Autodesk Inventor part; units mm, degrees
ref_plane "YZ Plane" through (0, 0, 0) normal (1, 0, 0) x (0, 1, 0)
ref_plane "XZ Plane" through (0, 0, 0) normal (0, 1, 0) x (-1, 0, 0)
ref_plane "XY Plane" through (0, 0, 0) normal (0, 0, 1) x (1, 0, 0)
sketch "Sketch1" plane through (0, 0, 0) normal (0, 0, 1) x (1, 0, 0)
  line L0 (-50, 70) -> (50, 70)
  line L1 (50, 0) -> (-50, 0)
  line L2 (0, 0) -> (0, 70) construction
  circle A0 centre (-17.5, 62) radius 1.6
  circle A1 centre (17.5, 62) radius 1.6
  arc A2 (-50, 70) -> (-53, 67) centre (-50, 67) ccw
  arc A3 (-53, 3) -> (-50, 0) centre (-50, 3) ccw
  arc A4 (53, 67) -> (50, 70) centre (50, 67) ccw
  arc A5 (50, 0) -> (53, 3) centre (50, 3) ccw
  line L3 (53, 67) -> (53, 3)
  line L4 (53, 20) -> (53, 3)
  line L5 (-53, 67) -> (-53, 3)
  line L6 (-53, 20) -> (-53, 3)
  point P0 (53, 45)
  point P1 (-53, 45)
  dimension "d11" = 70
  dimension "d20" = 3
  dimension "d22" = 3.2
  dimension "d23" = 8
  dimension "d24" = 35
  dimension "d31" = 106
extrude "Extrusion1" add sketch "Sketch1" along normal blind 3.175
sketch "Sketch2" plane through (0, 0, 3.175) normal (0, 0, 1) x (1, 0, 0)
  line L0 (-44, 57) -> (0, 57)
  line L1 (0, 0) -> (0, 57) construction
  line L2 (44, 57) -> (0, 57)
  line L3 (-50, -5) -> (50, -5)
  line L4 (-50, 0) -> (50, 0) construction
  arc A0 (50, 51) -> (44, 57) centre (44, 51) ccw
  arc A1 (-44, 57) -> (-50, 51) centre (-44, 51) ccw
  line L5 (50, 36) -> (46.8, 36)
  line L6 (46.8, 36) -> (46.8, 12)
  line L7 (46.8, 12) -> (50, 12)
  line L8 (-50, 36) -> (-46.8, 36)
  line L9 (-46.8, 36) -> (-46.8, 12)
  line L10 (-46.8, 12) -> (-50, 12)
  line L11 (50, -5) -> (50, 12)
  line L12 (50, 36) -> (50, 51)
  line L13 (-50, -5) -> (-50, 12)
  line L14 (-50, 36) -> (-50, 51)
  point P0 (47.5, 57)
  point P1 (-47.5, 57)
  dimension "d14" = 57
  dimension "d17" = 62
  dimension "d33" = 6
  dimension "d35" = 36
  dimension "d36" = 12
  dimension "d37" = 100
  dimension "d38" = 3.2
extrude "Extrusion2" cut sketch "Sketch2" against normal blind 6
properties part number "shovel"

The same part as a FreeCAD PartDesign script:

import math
import FreeCAD as App
import Part
import Sketcher
Q = App.Units.Quantity

doc = App.newDocument("Part")
body = doc.addObject("PartDesign::Body", "Body")

# Sketch on XY plane
sketch1 = body.newObject("Sketcher::SketchObject", "Sketch")
sketch1.AttachmentSupport = (doc.getObject("XY_Plane"), [""])
sketch1.MapMode = "FlatFace"
sketch1.addGeometry(Part.LineSegment(App.Vector(50, 70, 0), App.Vector(-50, 70, 0)), False)
sketch1.addGeometry(Part.ArcOfCircle(Part.Circle(App.Vector(-50, 67, 0), App.Vector(0, 0, 1), 3), math.radians(90), math.radians(180)), False)
sketch1.addGeometry(Part.LineSegment(App.Vector(-53, 67, 0), App.Vector(-53, 3, 0)), False)
sketch1.addGeometry(Part.ArcOfCircle(Part.Circle(App.Vector(-50, 3, 0), App.Vector(0, 0, 1), 3), math.radians(180), math.radians(270)), False)
sketch1.addGeometry(Part.LineSegment(App.Vector(-50, 0, 0), App.Vector(50, 0, 0)), False)
sketch1.addGeometry(Part.ArcOfCircle(Part.Circle(App.Vector(50, 3, 0), App.Vector(0, 0, 1), 3), math.radians(-90), math.radians(0)), False)
sketch1.addGeometry(Part.LineSegment(App.Vector(53, 3, 0), App.Vector(53, 67, 0)), False)
sketch1.addGeometry(Part.ArcOfCircle(Part.Circle(App.Vector(50, 67, 0), App.Vector(0, 0, 1), 3), math.radians(0), math.radians(90)), False)
sketch1.addGeometry(Part.Circle(App.Vector(-17.5, 62, 0), App.Vector(0, 0, 1), 1.6), False)
sketch1.addGeometry(Part.Circle(App.Vector(17.5, 62, 0), App.Vector(0, 0, 1), 1.6), False)
sketch1.addConstraint(Sketcher.Constraint("Tangent", 0, 2, 1, 1))
sketch1.addConstraint(Sketcher.Constraint("Tangent", 1, 2, 2, 1))
sketch1.addConstraint(Sketcher.Constraint("Tangent", 2, 2, 3, 1))
sketch1.addConstraint(Sketcher.Constraint("Tangent", 3, 2, 4, 1))
sketch1.addConstraint(Sketcher.Constraint("Tangent", 4, 2, 5, 1))
sketch1.addConstraint(Sketcher.Constraint("Tangent", 5, 2, 6, 1))
sketch1.addConstraint(Sketcher.Constraint("Tangent", 6, 2, 7, 1))
sketch1.addConstraint(Sketcher.Constraint("Tangent", 7, 2, 0, 1))
sketch1.addConstraint(Sketcher.Constraint("Horizontal", 0))
sketch1.addConstraint(Sketcher.Constraint("Vertical", 2))
sketch1.addConstraint(Sketcher.Constraint("Horizontal", 4))
sketch1.addConstraint(Sketcher.Constraint("Vertical", 6))
sketch1.addConstraint(Sketcher.Constraint("Equal", 1, 3))
sketch1.addConstraint(Sketcher.Constraint("Equal", 3, 5))
sketch1.addConstraint(Sketcher.Constraint("Equal", 5, 7))
sketch1.addConstraint(Sketcher.Constraint("Equal", 8, 9))
sketch1.addConstraint(Sketcher.Constraint("Symmetric", 3, 2, 4, 2, -1, 1))
sketch1.addConstraint(Sketcher.Constraint("Symmetric", 8, 3, 9, 3, -2))
sketch1.addConstraint(Sketcher.Constraint("Radius", 1, Q("3 mm")))
sketch1.addConstraint(Sketcher.Constraint("Diameter", 8, Q("3.2 mm")))
sketch1.addConstraint(Sketcher.Constraint("DistanceY", -1, 1, 0, 2, Q("70 mm")))
sketch1.addConstraint(Sketcher.Constraint("DistanceX", 8, 3, 9, 3, Q("35 mm")))
sketch1.addConstraint(Sketcher.Constraint("DistanceY", 8, 3, 0, 2, Q("8 mm")))
sketch1.addConstraint(Sketcher.Constraint("DistanceX", 0, 2, 0, 1, Q("100 mm")))
pad1 = body.newObject("PartDesign::Pad", "Pad")
pad1.Profile = sketch1
pad1.Length = 3.175

# Sketch on XY plane
sketch2 = body.newObject("Sketcher::SketchObject", "Sketch001")
sketch2.AttachmentSupport = (doc.getObject("XY_Plane"), [""])
sketch2.MapMode = "FlatFace"
sketch2.AttachmentOffset = App.Placement(App.Vector(0, 0, 3.175), App.Rotation())
sketch2.addGeometry(Part.LineSegment(App.Vector(44, 57, 0), App.Vector(-44, 57, 0)), False)
sketch2.addGeometry(Part.ArcOfCircle(Part.Circle(App.Vector(-44, 51, 0), App.Vector(0, 0, 1), 6), math.radians(90), math.radians(180)), False)
sketch2.addGeometry(Part.LineSegment(App.Vector(-50, 51, 0), App.Vector(-50, 36, 0)), False)
sketch2.addGeometry(Part.LineSegment(App.Vector(-50, 36, 0), App.Vector(-46.8, 36, 0)), False)
sketch2.addGeometry(Part.LineSegment(App.Vector(-46.8, 36, 0), App.Vector(-46.8, 12, 0)), False)
sketch2.addGeometry(Part.LineSegment(App.Vector(-46.8, 12, 0), App.Vector(-50, 12, 0)), False)
sketch2.addGeometry(Part.LineSegment(App.Vector(-50, 12, 0), App.Vector(-50, -5, 0)), False)
sketch2.addGeometry(Part.LineSegment(App.Vector(-50, -5, 0), App.Vector(50, -5, 0)), False)
sketch2.addGeometry(Part.LineSegment(App.Vector(50, -5, 0), App.Vector(50, 12, 0)), False)
sketch2.addGeometry(Part.LineSegment(App.Vector(50, 12, 0), App.Vector(46.8, 12, 0)), False)
sketch2.addGeometry(Part.LineSegment(App.Vector(46.8, 12, 0), App.Vector(46.8, 36, 0)), False)
sketch2.addGeometry(Part.LineSegment(App.Vector(46.8, 36, 0), App.Vector(50, 36, 0)), False)
sketch2.addGeometry(Part.LineSegment(App.Vector(50, 36, 0), App.Vector(50, 51, 0)), False)
sketch2.addGeometry(Part.ArcOfCircle(Part.Circle(App.Vector(44, 51, 0), App.Vector(0, 0, 1), 6), math.radians(0), math.radians(90)), False)
sketch2.addConstraint(Sketcher.Constraint("Tangent", 0, 2, 1, 1))
sketch2.addConstraint(Sketcher.Constraint("Tangent", 1, 2, 2, 1))
sketch2.addConstraint(Sketcher.Constraint("Coincident", 2, 2, 3, 1))
sketch2.addConstraint(Sketcher.Constraint("Coincident", 3, 2, 4, 1))
sketch2.addConstraint(Sketcher.Constraint("Coincident", 4, 2, 5, 1))
sketch2.addConstraint(Sketcher.Constraint("Coincident", 5, 2, 6, 1))
sketch2.addConstraint(Sketcher.Constraint("Coincident", 6, 2, 7, 1))
sketch2.addConstraint(Sketcher.Constraint("Coincident", 7, 2, 8, 1))
sketch2.addConstraint(Sketcher.Constraint("Coincident", 8, 2, 9, 1))
sketch2.addConstraint(Sketcher.Constraint("Coincident", 9, 2, 10, 1))
sketch2.addConstraint(Sketcher.Constraint("Coincident", 10, 2, 11, 1))
sketch2.addConstraint(Sketcher.Constraint("Coincident", 11, 2, 12, 1))
sketch2.addConstraint(Sketcher.Constraint("Tangent", 12, 2, 13, 1))
sketch2.addConstraint(Sketcher.Constraint("Tangent", 13, 2, 0, 1))
sketch2.addConstraint(Sketcher.Constraint("Horizontal", 0))
sketch2.addConstraint(Sketcher.Constraint("Vertical", 2))
sketch2.addConstraint(Sketcher.Constraint("Horizontal", 3))
sketch2.addConstraint(Sketcher.Constraint("Vertical", 4))
sketch2.addConstraint(Sketcher.Constraint("Horizontal", 5))
sketch2.addConstraint(Sketcher.Constraint("Vertical", 6))
sketch2.addConstraint(Sketcher.Constraint("Horizontal", 7))
sketch2.addConstraint(Sketcher.Constraint("Vertical", 8))
sketch2.addConstraint(Sketcher.Constraint("Horizontal", 9))
sketch2.addConstraint(Sketcher.Constraint("Vertical", 10))
sketch2.addConstraint(Sketcher.Constraint("Horizontal", 11))
sketch2.addConstraint(Sketcher.Constraint("Vertical", 12))
sketch2.addConstraint(Sketcher.Constraint("Equal", 1, 13))
sketch2.addConstraint(Sketcher.Constraint("Symmetric", 5, 2, 8, 2, -2))
sketch2.addConstraint(Sketcher.Constraint("Symmetric", 3, 2, 10, 2, -2))
sketch2.addConstraint(Sketcher.Constraint("Vertical", 2, 2, 5, 2))
sketch2.addConstraint(Sketcher.Constraint("Vertical", 8, 2, 11, 2))
sketch2.addConstraint(Sketcher.Constraint("Radius", 1, Q("6 mm")))
sketch2.addConstraint(Sketcher.Constraint("DistanceX", 7, 1, 7, 2, Q("100 mm")))
sketch2.addConstraint(Sketcher.Constraint("DistanceX", 3, 1, 3, 2, Q("3.2 mm")))
sketch2.addConstraint(Sketcher.Constraint("DistanceY", -1, 1, 0, 2, Q("57 mm")))
sketch2.addConstraint(Sketcher.Constraint("DistanceY", -1, 1, 2, 2, Q("36 mm")))
sketch2.addConstraint(Sketcher.Constraint("DistanceY", -1, 1, 4, 2, Q("12 mm")))
sketch2.addConstraint(Sketcher.Constraint("DistanceY", 6, 2, 6, 1, Q("17 mm")))
pocket1 = body.newObject("PartDesign::Pocket", "Pocket")
pocket1.Profile = sketch2
pocket1.Length = 6

doc.recompute()
